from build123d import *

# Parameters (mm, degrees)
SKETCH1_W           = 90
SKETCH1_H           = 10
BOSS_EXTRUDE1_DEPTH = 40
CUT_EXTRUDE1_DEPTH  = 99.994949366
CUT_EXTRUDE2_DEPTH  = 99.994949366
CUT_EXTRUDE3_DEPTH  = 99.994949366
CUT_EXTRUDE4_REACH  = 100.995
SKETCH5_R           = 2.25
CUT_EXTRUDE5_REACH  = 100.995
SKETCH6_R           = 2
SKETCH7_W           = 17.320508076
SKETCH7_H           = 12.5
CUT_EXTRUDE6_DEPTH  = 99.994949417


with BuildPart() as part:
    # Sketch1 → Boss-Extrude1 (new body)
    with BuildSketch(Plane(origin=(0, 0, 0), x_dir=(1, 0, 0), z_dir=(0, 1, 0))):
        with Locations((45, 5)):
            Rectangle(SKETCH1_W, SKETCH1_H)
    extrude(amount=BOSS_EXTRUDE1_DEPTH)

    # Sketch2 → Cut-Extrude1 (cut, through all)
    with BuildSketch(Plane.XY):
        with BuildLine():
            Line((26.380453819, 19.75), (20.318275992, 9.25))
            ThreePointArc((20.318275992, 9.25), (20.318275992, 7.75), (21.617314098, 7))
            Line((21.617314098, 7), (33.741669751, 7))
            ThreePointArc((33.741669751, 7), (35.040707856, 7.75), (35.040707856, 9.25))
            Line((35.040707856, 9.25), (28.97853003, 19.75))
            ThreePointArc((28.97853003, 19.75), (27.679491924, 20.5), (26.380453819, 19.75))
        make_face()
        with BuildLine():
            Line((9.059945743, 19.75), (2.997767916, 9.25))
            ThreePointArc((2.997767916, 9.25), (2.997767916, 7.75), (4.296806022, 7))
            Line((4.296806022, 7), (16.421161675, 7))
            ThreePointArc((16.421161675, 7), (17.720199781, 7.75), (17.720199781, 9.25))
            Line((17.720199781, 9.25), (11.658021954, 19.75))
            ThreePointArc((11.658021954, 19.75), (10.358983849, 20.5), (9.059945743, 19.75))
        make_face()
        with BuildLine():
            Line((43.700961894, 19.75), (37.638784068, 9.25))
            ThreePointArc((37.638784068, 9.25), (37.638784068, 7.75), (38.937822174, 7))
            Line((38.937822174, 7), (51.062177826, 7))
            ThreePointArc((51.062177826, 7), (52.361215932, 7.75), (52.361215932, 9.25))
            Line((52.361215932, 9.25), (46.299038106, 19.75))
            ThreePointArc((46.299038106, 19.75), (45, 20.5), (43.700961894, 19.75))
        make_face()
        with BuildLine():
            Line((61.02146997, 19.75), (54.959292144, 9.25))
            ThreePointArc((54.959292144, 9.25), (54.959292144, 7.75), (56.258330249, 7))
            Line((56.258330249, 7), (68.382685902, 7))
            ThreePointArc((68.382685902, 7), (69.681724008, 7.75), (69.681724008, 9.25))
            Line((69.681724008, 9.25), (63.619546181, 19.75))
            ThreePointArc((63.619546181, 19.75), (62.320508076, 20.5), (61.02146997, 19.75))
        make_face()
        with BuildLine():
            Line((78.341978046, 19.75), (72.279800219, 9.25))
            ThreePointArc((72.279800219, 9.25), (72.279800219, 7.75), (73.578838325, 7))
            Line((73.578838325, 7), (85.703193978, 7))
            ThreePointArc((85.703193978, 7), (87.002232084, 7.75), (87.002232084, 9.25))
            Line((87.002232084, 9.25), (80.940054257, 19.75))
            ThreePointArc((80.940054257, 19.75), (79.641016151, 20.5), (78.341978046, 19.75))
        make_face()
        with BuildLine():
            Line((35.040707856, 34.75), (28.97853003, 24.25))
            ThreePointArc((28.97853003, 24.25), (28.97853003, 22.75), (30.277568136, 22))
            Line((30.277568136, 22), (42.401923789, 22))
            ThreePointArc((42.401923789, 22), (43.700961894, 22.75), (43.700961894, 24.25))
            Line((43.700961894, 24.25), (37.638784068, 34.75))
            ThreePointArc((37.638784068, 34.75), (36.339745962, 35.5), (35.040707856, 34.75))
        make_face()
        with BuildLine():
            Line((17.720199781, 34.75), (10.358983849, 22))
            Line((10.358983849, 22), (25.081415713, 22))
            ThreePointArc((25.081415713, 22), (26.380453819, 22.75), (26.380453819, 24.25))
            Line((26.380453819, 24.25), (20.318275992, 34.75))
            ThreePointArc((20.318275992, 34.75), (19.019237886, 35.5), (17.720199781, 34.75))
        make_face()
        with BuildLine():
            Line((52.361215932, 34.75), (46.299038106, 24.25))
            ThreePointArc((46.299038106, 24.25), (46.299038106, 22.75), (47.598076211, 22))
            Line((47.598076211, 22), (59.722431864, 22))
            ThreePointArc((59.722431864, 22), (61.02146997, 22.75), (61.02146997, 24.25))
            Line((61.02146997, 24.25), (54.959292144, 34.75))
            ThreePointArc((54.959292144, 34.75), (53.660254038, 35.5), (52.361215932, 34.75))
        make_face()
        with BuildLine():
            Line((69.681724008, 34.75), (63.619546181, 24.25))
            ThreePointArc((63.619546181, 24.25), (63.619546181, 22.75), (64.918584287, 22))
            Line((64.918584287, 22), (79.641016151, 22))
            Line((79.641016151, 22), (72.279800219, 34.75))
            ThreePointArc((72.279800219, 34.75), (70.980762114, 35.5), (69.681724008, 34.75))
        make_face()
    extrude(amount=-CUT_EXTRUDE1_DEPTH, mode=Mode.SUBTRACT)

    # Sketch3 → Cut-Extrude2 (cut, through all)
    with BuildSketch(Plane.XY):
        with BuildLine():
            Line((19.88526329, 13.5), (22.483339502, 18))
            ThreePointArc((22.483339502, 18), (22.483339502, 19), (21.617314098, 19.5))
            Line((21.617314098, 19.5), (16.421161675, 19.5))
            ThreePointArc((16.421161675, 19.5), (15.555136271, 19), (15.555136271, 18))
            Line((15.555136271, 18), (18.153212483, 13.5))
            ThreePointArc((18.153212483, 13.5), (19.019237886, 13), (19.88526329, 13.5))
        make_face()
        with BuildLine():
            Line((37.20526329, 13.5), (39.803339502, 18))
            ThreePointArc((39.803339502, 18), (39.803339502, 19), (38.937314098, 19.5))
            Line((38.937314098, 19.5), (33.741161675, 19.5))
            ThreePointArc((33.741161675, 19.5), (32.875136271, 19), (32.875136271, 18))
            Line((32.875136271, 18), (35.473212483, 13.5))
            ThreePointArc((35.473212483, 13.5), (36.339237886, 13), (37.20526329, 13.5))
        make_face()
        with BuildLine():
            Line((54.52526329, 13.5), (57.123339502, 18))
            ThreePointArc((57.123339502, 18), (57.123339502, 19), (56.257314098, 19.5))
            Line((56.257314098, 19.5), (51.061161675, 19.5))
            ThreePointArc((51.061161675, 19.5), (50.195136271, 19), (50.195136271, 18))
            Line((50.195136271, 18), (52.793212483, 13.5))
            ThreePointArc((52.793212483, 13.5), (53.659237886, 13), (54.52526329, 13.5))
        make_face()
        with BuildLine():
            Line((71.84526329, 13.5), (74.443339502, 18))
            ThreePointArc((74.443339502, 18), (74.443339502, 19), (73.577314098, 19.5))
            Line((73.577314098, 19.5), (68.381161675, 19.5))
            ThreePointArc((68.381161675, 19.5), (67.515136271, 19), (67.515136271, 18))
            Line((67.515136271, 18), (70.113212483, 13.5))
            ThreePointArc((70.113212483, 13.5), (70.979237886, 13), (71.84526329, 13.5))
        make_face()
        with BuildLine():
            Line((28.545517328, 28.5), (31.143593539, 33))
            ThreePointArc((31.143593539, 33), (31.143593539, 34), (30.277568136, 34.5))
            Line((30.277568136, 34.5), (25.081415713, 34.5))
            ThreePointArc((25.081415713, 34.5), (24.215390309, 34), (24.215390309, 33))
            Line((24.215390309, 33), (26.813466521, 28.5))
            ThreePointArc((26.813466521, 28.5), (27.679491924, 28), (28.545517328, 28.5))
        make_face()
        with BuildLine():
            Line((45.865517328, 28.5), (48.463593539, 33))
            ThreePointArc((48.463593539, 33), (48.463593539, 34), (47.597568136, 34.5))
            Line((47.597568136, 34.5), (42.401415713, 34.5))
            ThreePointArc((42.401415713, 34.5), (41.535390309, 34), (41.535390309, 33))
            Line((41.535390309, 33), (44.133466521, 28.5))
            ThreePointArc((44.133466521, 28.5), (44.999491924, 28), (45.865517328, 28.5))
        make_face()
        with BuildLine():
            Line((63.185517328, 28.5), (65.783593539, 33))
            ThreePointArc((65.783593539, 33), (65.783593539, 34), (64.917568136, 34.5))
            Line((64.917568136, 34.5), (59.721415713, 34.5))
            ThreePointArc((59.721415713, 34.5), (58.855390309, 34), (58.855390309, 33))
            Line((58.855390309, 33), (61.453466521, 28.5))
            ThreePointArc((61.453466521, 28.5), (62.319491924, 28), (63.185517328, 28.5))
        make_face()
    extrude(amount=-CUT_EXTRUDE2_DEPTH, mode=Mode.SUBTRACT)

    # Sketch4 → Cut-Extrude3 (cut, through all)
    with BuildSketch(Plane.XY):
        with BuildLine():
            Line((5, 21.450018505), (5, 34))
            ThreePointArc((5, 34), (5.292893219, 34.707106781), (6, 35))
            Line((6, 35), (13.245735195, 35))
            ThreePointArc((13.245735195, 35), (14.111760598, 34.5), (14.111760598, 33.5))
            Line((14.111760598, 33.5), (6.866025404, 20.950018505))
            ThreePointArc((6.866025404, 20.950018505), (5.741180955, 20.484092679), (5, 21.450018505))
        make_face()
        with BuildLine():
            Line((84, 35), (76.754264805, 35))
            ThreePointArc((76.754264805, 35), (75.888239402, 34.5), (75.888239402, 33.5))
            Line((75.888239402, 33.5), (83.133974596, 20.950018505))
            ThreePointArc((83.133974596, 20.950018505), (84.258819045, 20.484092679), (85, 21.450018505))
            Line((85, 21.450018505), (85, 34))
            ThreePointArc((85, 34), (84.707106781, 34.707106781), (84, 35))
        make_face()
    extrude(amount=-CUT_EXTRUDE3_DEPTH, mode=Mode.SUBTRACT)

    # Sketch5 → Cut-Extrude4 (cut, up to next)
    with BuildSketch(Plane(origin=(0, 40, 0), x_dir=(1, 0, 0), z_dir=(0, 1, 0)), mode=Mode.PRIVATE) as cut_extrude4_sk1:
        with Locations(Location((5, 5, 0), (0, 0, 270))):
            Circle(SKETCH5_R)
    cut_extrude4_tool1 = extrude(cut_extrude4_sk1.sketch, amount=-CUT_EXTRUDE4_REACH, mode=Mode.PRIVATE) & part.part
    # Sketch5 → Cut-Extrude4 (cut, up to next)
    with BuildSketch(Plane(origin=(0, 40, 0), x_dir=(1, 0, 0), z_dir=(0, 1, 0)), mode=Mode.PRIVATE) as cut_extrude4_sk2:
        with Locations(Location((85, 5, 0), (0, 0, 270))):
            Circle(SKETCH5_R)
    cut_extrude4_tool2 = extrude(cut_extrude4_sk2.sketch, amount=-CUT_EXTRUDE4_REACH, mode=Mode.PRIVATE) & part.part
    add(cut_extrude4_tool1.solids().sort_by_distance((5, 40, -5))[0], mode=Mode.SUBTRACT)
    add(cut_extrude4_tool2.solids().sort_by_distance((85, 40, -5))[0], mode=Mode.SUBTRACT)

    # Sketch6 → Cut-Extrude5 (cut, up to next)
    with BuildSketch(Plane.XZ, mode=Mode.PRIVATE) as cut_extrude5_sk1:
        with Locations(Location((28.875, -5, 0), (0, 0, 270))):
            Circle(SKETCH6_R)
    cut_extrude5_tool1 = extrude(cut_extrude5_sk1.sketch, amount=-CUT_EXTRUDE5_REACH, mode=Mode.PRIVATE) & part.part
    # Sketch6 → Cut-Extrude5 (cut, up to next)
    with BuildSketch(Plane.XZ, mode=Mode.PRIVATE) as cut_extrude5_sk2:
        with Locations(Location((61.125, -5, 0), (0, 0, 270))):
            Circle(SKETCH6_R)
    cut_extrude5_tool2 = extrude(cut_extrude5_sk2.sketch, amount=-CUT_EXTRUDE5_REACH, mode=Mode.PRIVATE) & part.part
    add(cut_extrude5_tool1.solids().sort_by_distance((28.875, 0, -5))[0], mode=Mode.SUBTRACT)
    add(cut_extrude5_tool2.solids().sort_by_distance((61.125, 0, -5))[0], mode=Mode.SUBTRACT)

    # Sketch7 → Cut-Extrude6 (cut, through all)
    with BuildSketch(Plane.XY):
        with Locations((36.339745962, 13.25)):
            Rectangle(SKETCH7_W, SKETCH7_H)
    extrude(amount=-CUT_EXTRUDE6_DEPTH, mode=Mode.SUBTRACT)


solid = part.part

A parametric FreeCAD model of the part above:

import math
import FreeCAD as App
import Part
import Sketcher

V = App.Vector
Q = App.Units.Quantity


def add_polygon(sketch, points):
    """Adds a closed chain of lines whose ends are joined by coincident constraints."""
    first, n = sketch.GeometryCount, len(points)
    for a, b in zip(points, points[1:] + points[:1]):
        sketch.addGeometry(Part.LineSegment(App.Vector(*a, 0), App.Vector(*b, 0)), False)
    for i in range(n):
        sketch.addConstraint(Sketcher.Constraint("Coincident", first + i, 2, first + (i + 1) % n, 1))

doc = App.newDocument("Part")
params = doc.addObject("Spreadsheet::Sheet", "Params")
for row, (alias, value) in enumerate([
    ("sketch1_width", "90 mm"),
    ("sketch1_height", "10 mm"),
    ("pad1_length", "40 mm"),
    ("sketch2_radius", "1.5 mm"),
    ("sketch3_radius", "1 mm"),
    ("sketch4_radius", "1 mm"),
    ("sketch5_diameter", "4.5 mm"),
    ("pocket4_length", "40 mm"),
    ("sketch6_diameter", "4.5 mm"),
    ("pocket5_length", "40 mm"),
    ("sketch7_diameter", "4 mm"),
    ("sketch8_diameter", "4 mm"),
    ("sketch9_height", "12.5 mm"),
], start=1):
    params.set(f"A{row}", alias)
    params.set(f"B{row}", "=" + value)
    params.setAlias(f"B{row}", alias)

body = doc.addObject("PartDesign::Body", "Body")

# Sketch on XZ plane
sketch1 = body.newObject("Sketcher::SketchObject", "Sketch")
sketch1.AttachmentSupport = (doc.getObject("XZ_Plane"), [""])
sketch1.MapMode = "FlatFace"
add_polygon(sketch1, [(0, -10), (0, 0), (90, 0), (90, -10)])  # lines 0-3
sketch1.addConstraint(Sketcher.Constraint("Vertical", 0))
sketch1.addConstraint(Sketcher.Constraint("Horizontal", 1))
sketch1.addConstraint(Sketcher.Constraint("Vertical", 2))
sketch1.addConstraint(Sketcher.Constraint("Horizontal", 3))
sketch1.addConstraint(Sketcher.Constraint("Coincident", 0, 2, -1, 1))
sketch1.addConstraint(Sketcher.Constraint("DistanceX", 1, 1, 1, 2, Q("90 mm")))
sketch1.addConstraint(Sketcher.Constraint("DistanceY", 0, 1, 0, 2, Q("10 mm")))
sketch1.setExpression("Constraints[9]", "Params.sketch1_width")
sketch1.setExpression("Constraints[10]", "Params.sketch1_height")
pad1 = body.newObject("PartDesign::Pad", "Pad")
pad1.Profile = sketch1
pad1.setExpression("Length", "Params.pad1_length")
pad1.Reversed = True

# Sketch on XY plane
sketch2 = body.newObject("Sketcher::SketchObject", "Sketch001")
sketch2.AttachmentSupport = (doc.getObject("XY_Plane"), [""])
sketch2.MapMode = "FlatFace"
sketch2.addGeometry(Part.LineSegment(V(26.380454, 19.75, 0), V(20.318276, 9.25, 0)), False)
sketch2.addGeometry(Part.ArcOfCircle(Part.Circle(V(21.617314, 8.5, 0), V(0, 0, 1), 1.5), math.radians(150), math.radians(270)), False)
sketch2.addGeometry(Part.LineSegment(V(21.617314, 7, 0), V(33.74167, 7, 0)), False)
sketch2.addGeometry(Part.ArcOfCircle(Part.Circle(V(33.74167, 8.5, 0), V(0, 0, 1), 1.5), math.radians(-90), math.radians(30)), False)
sketch2.addGeometry(Part.LineSegment(V(35.040708, 9.25, 0), V(28.97853, 19.75, 0)), False)
sketch2.addGeometry(Part.ArcOfCircle(Part.Circle(V(27.679492, 19, 0), V(0, 0, 1), 1.5), math.radians(30), math.radians(150)), False)
sketch2.addGeometry(Part.LineSegment(V(9.059946, 19.75, 0), V(2.997768, 9.25, 0)), False)
sketch2.addGeometry(Part.ArcOfCircle(Part.Circle(V(4.296806, 8.5, 0), V(0, 0, 1), 1.5), math.radians(150), math.radians(270)), False)
sketch2.addGeometry(Part.LineSegment(V(4.296806, 7, 0), V(16.421162, 7, 0)), False)
sketch2.addGeometry(Part.ArcOfCircle(Part.Circle(V(16.421162, 8.5, 0), V(0, 0, 1), 1.5), math.radians(-90), math.radians(30)), False)
sketch2.addGeometry(Part.LineSegment(V(17.7202, 9.25, 0), V(11.658022, 19.75, 0)), False)
sketch2.addGeometry(Part.ArcOfCircle(Part.Circle(V(10.358984, 19, 0), V(0, 0, 1), 1.5), math.radians(30), math.radians(150)), False)
sketch2.addGeometry(Part.LineSegment(V(43.700962, 19.75, 0), V(37.638784, 9.25, 0)), False)
sketch2.addGeometry(Part.ArcOfCircle(Part.Circle(V(38.937822, 8.5, 0), V(0, 0, 1), 1.5), math.radians(150), math.radians(270)), False)
sketch2.addGeometry(Part.LineSegment(V(38.937822, 7, 0), V(51.062178, 7, 0)), False)
sketch2.addGeometry(Part.ArcOfCircle(Part.Circle(V(51.062178, 8.5, 0), V(0, 0, 1), 1.5), math.radians(-90), math.radians(30)), False)
sketch2.addGeometry(Part.LineSegment(V(52.361216, 9.25, 0), V(46.299038, 19.75, 0)), False)
sketch2.addGeometry(Part.ArcOfCircle(Part.Circle(V(45, 19, 0), V(0, 0, 1), 1.5), math.radians(30), math.radians(150)), False)
sketch2.addGeometry(Part.LineSegment(V(61.02147, 19.75, 0), V(54.959292, 9.25, 0)), False)
sketch2.addGeometry(Part.ArcOfCircle(Part.Circle(V(56.25833, 8.5, 0), V(0, 0, 1), 1.5), math.radians(150), math.radians(270)), False)
sketch2.addGeometry(Part.LineSegment(V(56.25833, 7, 0), V(68.382686, 7, 0)), False)
sketch2.addGeometry(Part.ArcOfCircle(Part.Circle(V(68.382686, 8.5, 0), V(0, 0, 1), 1.5), math.radians(-90), math.radians(30)), False)
sketch2.addGeometry(Part.LineSegment(V(69.681724, 9.25, 0), V(63.619546, 19.75, 0)), False)
sketch2.addGeometry(Part.ArcOfCircle(Part.Circle(V(62.320508, 19, 0), V(0, 0, 1), 1.5), math.radians(30), math.radians(150)), False)
sketch2.addGeometry(Part.LineSegment(V(78.341978, 19.75, 0), V(72.2798, 9.25, 0)), False)
sketch2.addGeometry(Part.ArcOfCircle(Part.Circle(V(73.578838, 8.5, 0), V(0, 0, 1), 1.5), math.radians(150), math.radians(270)), False)
sketch2.addGeometry(Part.LineSegment(V(73.578838, 7, 0), V(85.703194, 7, 0)), False)
sketch2.addGeometry(Part.ArcOfCircle(Part.Circle(V(85.703194, 8.5, 0), V(0, 0, 1), 1.5), math.radians(-90), math.radians(30)), False)
sketch2.addGeometry(Part.LineSegment(V(87.002232, 9.25, 0), V(80.940054, 19.75, 0)), False)
sketch2.addGeometry(Part.ArcOfCircle(Part.Circle(V(79.641016, 19, 0), V(0, 0, 1), 1.5), math.radians(30), math.radians(150)), False)
sketch2.addGeometry(Part.LineSegment(V(35.040708, 34.75, 0), V(28.97853, 24.25, 0)), False)
sketch2.addGeometry(Part.ArcOfCircle(Part.Circle(V(30.277568, 23.5, 0), V(0, 0, 1), 1.5), math.radians(150), math.radians(270)), False)
sketch2.addGeometry(Part.LineSegment(V(30.277568, 22, 0), V(42.401924, 22, 0)), False)
sketch2.addGeometry(Part.ArcOfCircle(Part.Circle(V(42.401924, 23.5, 0), V(0, 0, 1), 1.5), math.radians(-90), math.radians(30)), False)
sketch2.addGeometry(Part.LineSegment(V(43.700962, 24.25, 0), V(37.638784, 34.75, 0)), False)
sketch2.addGeometry(Part.ArcOfCircle(Part.Circle(V(36.339746, 34, 0), V(0, 0, 1), 1.5), math.radians(30), math.radians(150)), False)
sketch2.addGeometry(Part.LineSegment(V(17.7202, 34.75, 0), V(10.358984, 22, 0)), False)
sketch2.addGeometry(Part.LineSegment(V(10.358984, 22, 0), V(25.081416, 22, 0)), False)
sketch2.addGeometry(Part.ArcOfCircle(Part.Circle(V(25.081416, 23.5, 0), V(0, 0, 1), 1.5), math.radians(-90), math.radians(30)), False)
sketch2.addGeometry(Part.LineSegment(V(26.380454, 24.25, 0), V(20.318276, 34.75, 0)), False)
sketch2.addGeometry(Part.ArcOfCircle(Part.Circle(V(19.019238, 34, 0), V(0, 0, 1), 1.5), math.radians(30), math.radians(150)), False)
sketch2.addGeometry(Part.LineSegment(V(52.361216, 34.75, 0), V(46.299038, 24.25, 0)), False)
sketch2.addGeometry(Part.ArcOfCircle(Part.Circle(V(47.598076, 23.5, 0), V(0, 0, 1), 1.5), math.radians(150), math.radians(270)), False)
sketch2.addGeometry(Part.LineSegment(V(47.598076, 22, 0), V(59.722432, 22, 0)), False)
sketch2.addGeometry(Part.ArcOfCircle(Part.Circle(V(59.722432, 23.5, 0), V(0, 0, 1), 1.5), math.radians(-90), math.radians(30)), False)
sketch2.addGeometry(Part.LineSegment(V(61.02147, 24.25, 0), V(54.959292, 34.75, 0)), False)
sketch2.addGeometry(Part.ArcOfCircle(Part.Circle(V(53.660254, 34, 0), V(0, 0, 1), 1.5), math.radians(30), math.radians(150)), False)
sketch2.addGeometry(Part.LineSegment(V(69.681724, 34.75, 0), V(63.619546, 24.25, 0)), False)
sketch2.addGeometry(Part.ArcOfCircle(Part.Circle(V(64.918584, 23.5, 0), V(0, 0, 1), 1.5), math.radians(150), math.radians(270)), False)
sketch2.addGeometry(Part.LineSegment(V(64.918584, 22, 0), V(79.641016, 22, 0)), False)
sketch2.addGeometry(Part.LineSegment(V(79.641016, 22, 0), V(72.2798, 34.75, 0)), False)
sketch2.addGeometry(Part.ArcOfCircle(Part.Circle(V(70.980762, 34, 0), V(0, 0, 1), 1.5), math.radians(30), math.radians(150)), False)
sketch2.addConstraint(Sketcher.Constraint("Tangent", 0, 2, 1, 1))
sketch2.addConstraint(Sketcher.Constraint("Tangent", 1, 2, 2, 1))
sketch2.addConstraint(Sketcher.Constraint("Tangent", 2, 2, 3, 1))
sketch2.addConstraint(Sketcher.Constraint("Tangent", 3, 2, 4, 1))
sketch2.addConstraint(Sketcher.Constraint("Tangent", 4, 2, 5, 1))
sketch2.addConstraint(Sketcher.Constraint("Tangent", 5, 2, 0, 1))
sketch2.addConstraint(Sketcher.Constraint("Tangent", 6, 2, 7, 1))
sketch2.addConstraint(Sketcher.Constraint("Tangent", 7, 2, 8, 1))
sketch2.addConstraint(Sketcher.Constraint("Tangent", 8, 2, 9, 1))
sketch2.addConstraint(Sketcher.Constraint("Tangent", 9, 2, 10, 1))
sketch2.addConstraint(Sketcher.Constraint("Tangent", 10, 2, 11, 1))
sketch2.addConstraint(Sketcher.Constraint("Tangent", 11, 2, 6, 1))
sketch2.addConstraint(Sketcher.Constraint("Tangent", 12, 2, 13, 1))
sketch2.addConstraint(Sketcher.Constraint("Tangent", 13, 2, 14, 1))
sketch2.addConstraint(Sketcher.Constraint("Tangent", 14, 2, 15, 1))
sketch2.addConstraint(Sketcher.Constraint("Tangent", 15, 2, 16, 1))
sketch2.addConstraint(Sketcher.Constraint("Tangent", 16, 2, 17, 1))
sketch2.addConstraint(Sketcher.Constraint("Tangent", 17, 2, 12, 1))
sketch2.addConstraint(Sketcher.Constraint("Tangent", 18, 2, 19, 1))
sketch2.addConstraint(Sketcher.Constraint("Tangent", 19, 2, 20, 1))
sketch2.addConstraint(Sketcher.Constraint("Tangent", 20, 2, 21, 1))
sketch2.addConstraint(Sketcher.Constraint("Tangent", 21, 2, 22, 1))
sketch2.addConstraint(Sketcher.Constraint("Tangent", 22, 2, 23, 1))
sketch2.addConstraint(Sketcher.Constraint("Tangent", 23, 2, 18, 1))
sketch2.addConstraint(Sketcher.Constraint("Tangent", 24, 2, 25, 1))
sketch2.addConstraint(Sketcher.Constraint("Tangent", 25, 2, 26, 1))
sketch2.addConstraint(Sketcher.Constraint("Tangent", 26, 2, 27, 1))
sketch2.addConstraint(Sketcher.Constraint("Tangent", 27, 2, 28, 1))
sketch2.addConstraint(Sketcher.Constraint("Tangent", 28, 2, 29, 1))
sketch2.addConstraint(Sketcher.Constraint("Tangent", 29, 2, 24, 1))
sketch2.addConstraint(Sketcher.Constraint("Tangent", 30, 2, 31, 1))
sketch2.addConstraint(Sketcher.Constraint("Tangent", 31, 2, 32, 1))
sketch2.addConstraint(Sketcher.Constraint("Tangent", 32, 2, 33, 1))
sketch2.addConstraint(Sketcher.Constraint("Tangent", 33, 2, 34, 1))
sketch2.addConstraint(Sketcher.Constraint("Tangent", 34, 2, 35, 1))
sketch2.addConstraint(Sketcher.Constraint("Tangent", 35, 2, 30, 1))
sketch2.addConstraint(Sketcher.Constraint("Coincident", 36, 2, 37, 1))
sketch2.addConstraint(Sketcher.Constraint("Tangent", 37, 2, 38, 1))
sketch2.addConstraint(Sketcher.Constraint("Tangent", 38, 2, 39, 1))
sketch2.addConstraint(Sketcher.Constraint("Tangent", 39, 2, 40, 1))
sketch2.addConstraint(Sketcher.Constraint("Tangent", 40, 2, 36, 1))
sketch2.addConstraint(Sketcher.Constraint("Tangent", 41, 2, 42, 1))
sketch2.addConstraint(Sketcher.Constraint("Tangent", 42, 2, 43, 1))
sketch2.addConstraint(Sketcher.Constraint("Tangent", 43, 2, 44, 1))
sketch2.addConstraint(Sketcher.Constraint("Tangent", 44, 2, 45, 1))
sketch2.addConstraint(Sketcher.Constraint("Tangent", 45, 2, 46, 1))
sketch2.addConstraint(Sketcher.Constraint("Tangent", 46, 2, 41, 1))
sketch2.addConstraint(Sketcher.Constraint("Tangent", 47, 2, 48, 1))
sketch2.addConstraint(Sketcher.Constraint("Tangent", 48, 2, 49, 1))
sketch2.addConstraint(Sketcher.Constraint("Coincident", 49, 2, 50, 1))
sketch2.addConstraint(Sketcher.Constraint("Tangent", 50, 2, 51, 1))
sketch2.addConstraint(Sketcher.Constraint("Tangent", 51, 2, 47, 1))
sketch2.addConstraint(Sketcher.Constraint("Horizontal", 2))
sketch2.addConstraint(Sketcher.Constraint("Horizontal", 8))
sketch2.addConstraint(Sketcher.Constraint("Horizontal", 14))
sketch2.addConstraint(Sketcher.Constraint("Horizontal", 20))
sketch2.addConstraint(Sketcher.Constraint("Horizontal", 26))
sketch2.addConstraint(Sketcher.Constraint("Horizontal", 32))
sketch2.addConstraint(Sketcher.Constraint("Horizontal", 37))
sketch2.addConstraint(Sketcher.Constraint("Horizontal", 43))
sketch2.addConstraint(Sketcher.Constraint("Horizontal", 49))
sketch2.addConstraint(Sketcher.Constraint("Equal", 1, 3))
sketch2.addConstraint(Sketcher.Constraint("Equal", 3, 5))
sketch2.addConstraint(Sketcher.Constraint("Equal", 5, 7))
sketch2.addConstraint(Sketcher.Constraint("Equal", 7, 9))
sketch2.addConstraint(Sketcher.Constraint("Equal", 9, 11))
sketch2.addConstraint(Sketcher.Constraint("Equal", 11, 13))
sketch2.addConstraint(Sketcher.Constraint("Equal", 13, 15))
sketch2.addConstraint(Sketcher.Constraint("Equal", 15, 17))
sketch2.addConstraint(Sketcher.Constraint("Equal", 17, 19))
sketch2.addConstraint(Sketcher.Constraint("Equal", 19, 21))
sketch2.addConstraint(Sketcher.Constraint("Equal", 21, 23))
sketch2.addConstraint(Sketcher.Constraint("Equal", 23, 25))
sketch2.addConstraint(Sketcher.Constraint("Equal", 25, 27))
sketch2.addConstraint(Sketcher.Constraint("Equal", 27, 29))
sketch2.addConstraint(Sketcher.Constraint("Equal", 29, 31))
sketch2.addConstraint(Sketcher.Constraint("Equal", 31, 33))
sketch2.addConstraint(Sketcher.Constraint("Equal", 33, 35))
sketch2.addConstraint(Sketcher.Constraint("Equal", 35, 38))
sketch2.addConstraint(Sketcher.Constraint("Equal", 38, 40))
sketch2.addConstraint(Sketcher.Constraint("Equal", 40, 42))
sketch2.addConstraint(Sketcher.Constraint("Equal", 42, 44))
sketch2.addConstraint(Sketcher.Constraint("Equal", 44, 46))
sketch2.addConstraint(Sketcher.Constraint("Equal", 46, 48))
sketch2.addConstraint(Sketcher.Constraint("Equal", 48, 51))
sketch2.addConstraint(Sketcher.Constraint("Parallel", 0, 6))
sketch2.addConstraint(Sketcher.Constraint("Parallel", 4, 10))
sketch2.addConstraint(Sketcher.Constraint("Parallel", 6, 12))
sketch2.addConstraint(Sketcher.Constraint("Parallel", 10, 16))
sketch2.addConstraint(Sketcher.Constraint("Parallel", 12, 18))
sketch2.addConstraint(Sketcher.Constraint("Parallel", 16, 22))
sketch2.addConstraint(Sketcher.Constraint("Parallel", 18, 24))
sketch2.addConstraint(Sketcher.Constraint("Parallel", 22, 28))
sketch2.addConstraint(Sketcher.Constraint("Parallel", 24, 30))
sketch2.addConstraint(Sketcher.Constraint("Parallel", 28, 34))
sketch2.addConstraint(Sketcher.Constraint("Parallel", 30, 36))
sketch2.addConstraint(Sketcher.Constraint("Parallel", 34, 39))
sketch2.addConstraint(Sketcher.Constraint("Parallel", 36, 41))
sketch2.addConstraint(Sketcher.Constraint("Parallel", 39, 45))
sketch2.addConstraint(Sketcher.Constraint("Parallel", 41, 47))
sketch2.addConstraint(Sketcher.Constraint("Parallel", 45, 50))
sketch2.addConstraint(Sketcher.Constraint("Horizontal", 3, 3, 7, 3))
sketch2.addConstraint(Sketcher.Constraint("Horizontal", 5, 3, 11, 3))
sketch2.addConstraint(Sketcher.Constraint("Horizontal", 9, 3, 13, 3))
sketch2.addConstraint(Sketcher.Constraint("Horizontal", 11, 3, 17, 3))
sketch2.addConstraint(Sketcher.Constraint("Horizontal", 15, 3, 19, 3))
sketch2.addConstraint(Sketcher.Constraint("Horizontal", 17, 3, 23, 3))
sketch2.addConstraint(Sketcher.Constraint("Horizontal", 21, 3, 25, 3))
sketch2.addConstraint(Sketcher.Constraint("Horizontal", 23, 3, 29, 3))
sketch2.addConstraint(Sketcher.Constraint("Horizontal", 33, 3, 38, 3))
sketch2.addConstraint(Sketcher.Constraint("Horizontal", 35, 3, 40, 3))
sketch2.addConstraint(Sketcher.Constraint("Horizontal", 38, 3, 42, 3))
sketch2.addConstraint(Sketcher.Constraint("Horizontal", 40, 3, 46, 3))
sketch2.addConstraint(Sketcher.Constraint("Horizontal", 44, 3, 48, 3))
sketch2.addConstraint(Sketcher.Constraint("Horizontal", 46, 3, 51, 3))
sketch2.addConstraint(Sketcher.Constraint("Horizontal", 0, 2, 3, 2))
sketch2.addConstraint(Sketcher.Constraint("Vertical", 4, 2, 30, 2))
sketch2.addConstraint(Sketcher.Constraint("Vertical", 17, 2, 33, 2))
sketch2.addConstraint(Sketcher.Constraint("Vertical", 12, 2, 34, 2))
sketch2.addConstraint(Sketcher.Constraint("Vertical", 11, 3, 36, 2))
sketch2.addConstraint(Sketcher.Constraint("Vertical", 5, 2, 38, 2))
sketch2.addConstraint(Sketcher.Constraint("Vertical", 9, 2, 40, 2))
sketch2.addConstraint(Sketcher.Constraint("Vertical", 16, 2, 41, 2))
sketch2.addConstraint(Sketcher.Constraint("Vertical", 23, 2, 44, 2))
sketch2.addConstraint(Sketcher.Constraint("Vertical", 22, 2, 47, 2))
sketch2.addConstraint(Sketcher.Constraint("Vertical", 29, 3, 49, 2))
sketch2.addConstraint(Sketcher.Constraint("Radius", 1, Q("1.5 mm")))
sketch2.addConstraint(Sketcher.Constraint("DistanceY", -1, 1, 5, 3, Q("19 mm")))
sketch2.addConstraint(Sketcher.Constraint("DistanceX", -1, 1, 17, 3, Q("45 mm")))
sketch2.addConstraint(Sketcher.Constraint("DistanceY", -1, 1, 35, 3, Q("34 mm")))
sketch2.addConstraint(Sketcher.Constraint("DistanceY", -1, 1, 1, 2, Q("7 mm")))
sketch2.setExpression("Constraints[126]", "Params.sketch2_radius")
pocket1 = body.newObject("PartDesign::Pocket", "Pocket")
pocket1.Profile = sketch2
pocket1.Type = "ThroughAll"

# Sketch on XY plane
sketch3 = body.newObject("Sketcher::SketchObject", "Sketch002")
sketch3.AttachmentSupport = (doc.getObject("XY_Plane"), [""])
sketch3.MapMode = "FlatFace"
sketch3.addGeometry(Part.LineSegment(V(19.885263, 13.5, 0), V(22.48334, 18, 0)), False)
sketch3.addGeometry(Part.ArcOfCircle(Part.Circle(V(21.617314, 18.5, 0), V(0, 0, 1), 1), math.radians(-30), math.radians(90)), False)
sketch3.addGeometry(Part.LineSegment(V(21.617314, 19.5, 0), V(16.421162, 19.5, 0)), False)
sketch3.addGeometry(Part.ArcOfCircle(Part.Circle(V(16.421162, 18.5, 0), V(0, 0, 1), 1), math.radians(90), math.radians(210)), False)
sketch3.addGeometry(Part.LineSegment(V(15.555136, 18, 0), V(18.153212, 13.5, 0)), False)
sketch3.addGeometry(Part.ArcOfCircle(Part.Circle(V(19.019238, 14, 0), V(0, 0, 1), 1), math.radians(-150), math.radians(-30)), False)
sketch3.addGeometry(Part.LineSegment(V(37.205263, 13.5, 0), V(39.80334, 18, 0)), False)
sketch3.addGeometry(Part.ArcOfCircle(Part.Circle(V(38.937314, 18.5, 0), V(0, 0, 1), 1), math.radians(-30), math.radians(90)), False)
sketch3.addGeometry(Part.LineSegment(V(38.937314, 19.5, 0), V(33.741162, 19.5, 0)), False)
sketch3.addGeometry(Part.ArcOfCircle(Part.Circle(V(33.741162, 18.5, 0), V(0, 0, 1), 1), math.radians(90), math.radians(210)), False)
sketch3.addGeometry(Part.LineSegment(V(32.875136, 18, 0), V(35.473212, 13.5, 0)), False)
sketch3.addGeometry(Part.ArcOfCircle(Part.Circle(V(36.339238, 14, 0), V(0, 0, 1), 1), math.radians(-150), math.radians(-30)), False)
sketch3.addGeometry(Part.LineSegment(V(54.525263, 13.5, 0), V(57.12334, 18, 0)), False)
sketch3.addGeometry(Part.ArcOfCircle(Part.Circle(V(56.257314, 18.5, 0), V(0, 0, 1), 1), math.radians(-30), math.radians(90)), False)
sketch3.addGeometry(Part.LineSegment(V(56.257314, 19.5, 0), V(51.061162, 19.5, 0)), False)
sketch3.addGeometry(Part.ArcOfCircle(Part.Circle(V(51.061162, 18.5, 0), V(0, 0, 1), 1), math.radians(90), math.radians(210)), False)
sketch3.addGeometry(Part.LineSegment(V(50.195136, 18, 0), V(52.793212, 13.5, 0)), False)
sketch3.addGeometry(Part.ArcOfCircle(Part.Circle(V(53.659238, 14, 0), V(0, 0, 1), 1), math.radians(-150), math.radians(-30)), False)
sketch3.addGeometry(Part.LineSegment(V(71.845263, 13.5, 0), V(74.44334, 18, 0)), False)
sketch3.addGeometry(Part.ArcOfCircle(Part.Circle(V(73.577314, 18.5, 0), V(0, 0, 1), 1), math.radians(-30), math.radians(90)), False)
sketch3.addGeometry(Part.LineSegment(V(73.577314, 19.5, 0), V(68.381162, 19.5, 0)), False)
sketch3.addGeometry(Part.ArcOfCircle(Part.Circle(V(68.381162, 18.5, 0), V(0, 0, 1), 1), math.radians(90), math.radians(210)), False)
sketch3.addGeometry(Part.LineSegment(V(67.515136, 18, 0), V(70.113212, 13.5, 0)), False)
sketch3.addGeometry(Part.ArcOfCircle(Part.Circle(V(70.979238, 14, 0), V(0, 0, 1), 1), math.radians(-150), math.radians(-30)), False)
sketch3.addGeometry(Part.LineSegment(V(28.545517, 28.5, 0), V(31.143594, 33, 0)), False)
sketch3.addGeometry(Part.ArcOfCircle(Part.Circle(V(30.277568, 33.5, 0), V(0, 0, 1), 1), math.radians(-30), math.radians(90)), False)
sketch3.addGeometry(Part.LineSegment(V(30.277568, 34.5, 0), V(25.081416, 34.5, 0)), False)
sketch3.addGeometry(Part.ArcOfCircle(Part.Circle(V(25.081416, 33.5, 0), V(0, 0, 1), 1), math.radians(90), math.radians(210)), False)
sketch3.addGeometry(Part.LineSegment(V(24.21539, 33, 0), V(26.813467, 28.5, 0)), False)
sketch3.addGeometry(Part.ArcOfCircle(Part.Circle(V(27.679492, 29, 0), V(0, 0, 1), 1), math.radians(-150), math.radians(-30)), False)
sketch3.addGeometry(Part.LineSegment(V(45.865517, 28.5, 0), V(48.463594, 33, 0)), False)
sketch3.addGeometry(Part.ArcOfCircle(Part.Circle(V(47.597568, 33.5, 0), V(0, 0, 1), 1), math.radians(-30), math.radians(90)), False)
sketch3.addGeometry(Part.LineSegment(V(47.597568, 34.5, 0), V(42.401416, 34.5, 0)), False)
sketch3.addGeometry(Part.ArcOfCircle(Part.Circle(V(42.401416, 33.5, 0), V(0, 0, 1), 1), math.radians(90), math.radians(210)), False)
sketch3.addGeometry(Part.LineSegment(V(41.53539, 33, 0), V(44.133467, 28.5, 0)), False)
sketch3.addGeometry(Part.ArcOfCircle(Part.Circle(V(44.999492, 29, 0), V(0, 0, 1), 1), math.radians(-150), math.radians(-30)), False)
sketch3.addGeometry(Part.LineSegment(V(63.185517, 28.5, 0), V(65.783594, 33, 0)), False)
sketch3.addGeometry(Part.ArcOfCircle(Part.Circle(V(64.917568, 33.5, 0), V(0, 0, 1), 1), math.radians(-30), math.radians(90)), False)
sketch3.addGeometry(Part.LineSegment(V(64.917568, 34.5, 0), V(59.721416, 34.5, 0)), False)
sketch3.addGeometry(Part.ArcOfCircle(Part.Circle(V(59.721416, 33.5, 0), V(0, 0, 1), 1), math.radians(90), math.radians(210)), False)
sketch3.addGeometry(Part.LineSegment(V(58.85539, 33, 0), V(61.453467, 28.5, 0)), False)
sketch3.addGeometry(Part.ArcOfCircle(Part.Circle(V(62.319492, 29, 0), V(0, 0, 1), 1), math.radians(-150), math.radians(-30)), False)
sketch3.addConstraint(Sketcher.Constraint("Tangent", 0, 2, 1, 1))
sketch3.addConstraint(Sketcher.Constraint("Tangent", 1, 2, 2, 1))
sketch3.addConstraint(Sketcher.Constraint("Tangent", 2, 2, 3, 1))
sketch3.addConstraint(Sketcher.Constraint("Tangent", 3, 2, 4, 1))
sketch3.addConstraint(Sketcher.Constraint("Tangent", 4, 2, 5, 1))
sketch3.addConstraint(Sketcher.Constraint("Tangent", 5, 2, 0, 1))
sketch3.addConstraint(Sketcher.Constraint("Tangent", 6, 2, 7, 1))
sketch3.addConstraint(Sketcher.Constraint("Tangent", 7, 2, 8, 1))
sketch3.addConstraint(Sketcher.Constraint("Tangent", 8, 2, 9, 1))
sketch3.addConstraint(Sketcher.Constraint("Tangent", 9, 2, 10, 1))
sketch3.addConstraint(Sketcher.Constraint("Tangent", 10, 2, 11, 1))
sketch3.addConstraint(Sketcher.Constraint("Tangent", 11, 2, 6, 1))
sketch3.addConstraint(Sketcher.Constraint("Tangent", 12, 2, 13, 1))
sketch3.addConstraint(Sketcher.Constraint("Tangent", 13, 2, 14, 1))
sketch3.addConstraint(Sketcher.Constraint("Tangent", 14, 2, 15, 1))
sketch3.addConstraint(Sketcher.Constraint("Tangent", 15, 2, 16, 1))
sketch3.addConstraint(Sketcher.Constraint("Tangent", 16, 2, 17, 1))
sketch3.addConstraint(Sketcher.Constraint("Tangent", 17, 2, 12, 1))
sketch3.addConstraint(Sketcher.Constraint("Tangent", 18, 2, 19, 1))
sketch3.addConstraint(Sketcher.Constraint("Tangent", 19, 2, 20, 1))
sketch3.addConstraint(Sketcher.Constraint("Tangent", 20, 2, 21, 1))
sketch3.addConstraint(Sketcher.Constraint("Tangent", 21, 2, 22, 1))
sketch3.addConstraint(Sketcher.Constraint("Tangent", 22, 2, 23, 1))
sketch3.addConstraint(Sketcher.Constraint("Tangent", 23, 2, 18, 1))
sketch3.addConstraint(Sketcher.Constraint("Tangent", 24, 2, 25, 1))
sketch3.addConstraint(Sketcher.Constraint("Tangent", 25, 2, 26, 1))
sketch3.addConstraint(Sketcher.Constraint("Tangent", 26, 2, 27, 1))
sketch3.addConstraint(Sketcher.Constraint("Tangent", 27, 2, 28, 1))
sketch3.addConstraint(Sketcher.Constraint("Tangent", 28, 2, 29, 1))
sketch3.addConstraint(Sketcher.Constraint("Tangent", 29, 2, 24, 1))
sketch3.addConstraint(Sketcher.Constraint("Tangent", 30, 2, 31, 1))
sketch3.addConstraint(Sketcher.Constraint("Tangent", 31, 2, 32, 1))
sketch3.addConstraint(Sketcher.Constraint("Tangent", 32, 2, 33, 1))
sketch3.addConstraint(Sketcher.Constraint("Tangent", 33, 2, 34, 1))
sketch3.addConstraint(Sketcher.Constraint("Tangent", 34, 2, 35, 1))
sketch3.addConstraint(Sketcher.Constraint("Tangent", 35, 2, 30, 1))
sketch3.addConstraint(Sketcher.Constraint("Tangent", 36, 2, 37, 1))
sketch3.addConstraint(Sketcher.Constraint("Tangent", 37, 2, 38, 1))
sketch3.addConstraint(Sketcher.Constraint("Tangent", 38, 2, 39, 1))
sketch3.addConstraint(Sketcher.Constraint("Tangent", 39, 2, 40, 1))
sketch3.addConstraint(Sketcher.Constraint("Tangent", 40, 2, 41, 1))
sketch3.addConstraint(Sketcher.Constraint("Tangent", 41, 2, 36, 1))
sketch3.addConstraint(Sketcher.Constraint("Horizontal", 2))
sketch3.addConstraint(Sketcher.Constraint("Horizontal", 8))
sketch3.addConstraint(Sketcher.Constraint("Horizontal", 14))
sketch3.addConstraint(Sketcher.Constraint("Horizontal", 20))
sketch3.addConstraint(Sketcher.Constraint("Horizontal", 26))
sketch3.addConstraint(Sketcher.Constraint("Horizontal", 32))
sketch3.addConstraint(Sketcher.Constraint("Horizontal", 38))
sketch3.addConstraint(Sketcher.Constraint("Equal", 1, 3))
sketch3.addConstraint(Sketcher.Constraint("Equal", 3, 5))
sketch3.addConstraint(Sketcher.Constraint("Equal", 5, 7))
sketch3.addConstraint(Sketcher.Constraint("Equal", 7, 9))
sketch3.addConstraint(Sketcher.Constraint("Equal", 9, 11))
sketch3.addConstraint(Sketcher.Constraint("Equal", 11, 13))
sketch3.addConstraint(Sketcher.Constraint("Equal", 13, 15))
sketch3.addConstraint(Sketcher.Constraint("Equal", 15, 17))
sketch3.addConstraint(Sketcher.Constraint("Equal", 17, 19))
sketch3.addConstraint(Sketcher.Constraint("Equal", 19, 21))
sketch3.addConstraint(Sketcher.Constraint("Equal", 21, 23))
sketch3.addConstraint(Sketcher.Constraint("Equal", 23, 25))
sketch3.addConstraint(Sketcher.Constraint("Equal", 25, 27))
sketch3.addConstraint(Sketcher.Constraint("Equal", 27, 29))
sketch3.addConstraint(Sketcher.Constraint("Equal", 29, 31))
sketch3.addConstraint(Sketcher.Constraint("Equal", 31, 33))
sketch3.addConstraint(Sketcher.Constraint("Equal", 33, 35))
sketch3.addConstraint(Sketcher.Constraint("Equal", 35, 37))
sketch3.addConstraint(Sketcher.Constraint("Equal", 37, 39))
sketch3.addConstraint(Sketcher.Constraint("Equal", 39, 41))
sketch3.addConstraint(Sketcher.Constraint("Parallel", 0, 6))
sketch3.addConstraint(Sketcher.Constraint("Parallel", 4, 10))
sketch3.addConstraint(Sketcher.Constraint("Parallel", 6, 12))
sketch3.addConstraint(Sketcher.Constraint("Parallel", 10, 16))
sketch3.addConstraint(Sketcher.Constraint("Parallel", 12, 18))
sketch3.addConstraint(Sketcher.Constraint("Parallel", 16, 22))
sketch3.addConstraint(Sketcher.Constraint("Parallel", 18, 24))
sketch3.addConstraint(Sketcher.Constraint("Parallel", 22, 28))
sketch3.addConstraint(Sketcher.Constraint("Parallel", 24, 30))
sketch3.addConstraint(Sketcher.Constraint("Parallel", 28, 34))
sketch3.addConstraint(Sketcher.Constraint("Parallel", 30, 36))
sketch3.addConstraint(Sketcher.Constraint("Parallel", 34, 40))
sketch3.addConstraint(Sketcher.Constraint("Horizontal", 3, 3, 7, 3))
sketch3.addConstraint(Sketcher.Constraint("Horizontal", 5, 3, 11, 3))
sketch3.addConstraint(Sketcher.Constraint("Horizontal", 9, 3, 13, 3))
sketch3.addConstraint(Sketcher.Constraint("Horizontal", 11, 3, 17, 3))
sketch3.addConstraint(Sketcher.Constraint("Horizontal", 15, 3, 19, 3))
sketch3.addConstraint(Sketcher.Constraint("Horizontal", 17, 3, 23, 3))
sketch3.addConstraint(Sketcher.Constraint("Horizontal", 27, 3, 31, 3))
sketch3.addConstraint(Sketcher.Constraint("Horizontal", 29, 3, 35, 3))
sketch3.addConstraint(Sketcher.Constraint("Horizontal", 33, 3, 37, 3))
sketch3.addConstraint(Sketcher.Constraint("Horizontal", 35, 3, 41, 3))
sketch3.addConstraint(Sketcher.Constraint("Horizontal", 0, 2, 3, 2))
sketch3.addConstraint(Sketcher.Constraint("Equal", 20, 26))
sketch3.addConstraint(Sketcher.Constraint("Radius", 1, Q("1 mm")))
sketch3.addConstraint(Sketcher.Constraint("Angle", 0, Q("60 deg")))
sketch3.addConstraint(Sketcher.Constraint("DistanceY", -1, 1, 5, 3, Q("14 mm")))
sketch3.addConstraint(Sketcher.Constraint("DistanceY", -1, 1, 29, 3, Q("29 mm")))
sketch3.addConstraint(Sketcher.Constraint("DistanceY", -1, 1, 0, 2, Q("18 mm")))
sketch3.addConstraint(Sketcher.Constraint("DistanceX", -1, 1, 3, 3, Q("16.421162 mm")))
sketch3.addConstraint(Sketcher.Constraint("DistanceX", -1, 1, 9, 3, Q("33.741162 mm")))
sketch3.addConstraint(Sketcher.Constraint("DistanceX", -1, 1, 15, 3, Q("51.061162 mm")))
sketch3.addConstraint(Sketcher.Constraint("DistanceX", -1, 1, 21, 3, Q("68.381162 mm")))
sketch3.addConstraint(Sketcher.Constraint("DistanceX", -1, 1, 25, 3, Q("30.277568 mm")))
sketch3.addConstraint(Sketcher.Constraint("DistanceX", -1, 1, 31, 3, Q("47.597568 mm")))
sketch3.addConstraint(Sketcher.Constraint("DistanceX", -1, 1, 37, 3, Q("64.917568 mm")))
sketch3.setExpression("Constraints[93]", "Params.sketch3_radius")
pocket2 = body.newObject("PartDesign::Pocket", "Pocket001")
pocket2.Profile = sketch3
pocket2.Type = "ThroughAll"

# Sketch on XY plane
sketch4 = body.newObject("Sketcher::SketchObject", "Sketch003")
sketch4.AttachmentSupport = (doc.getObject("XY_Plane"), [""])
sketch4.MapMode = "FlatFace"
sketch4.addGeometry(Part.LineSegment(V(5, 34, 0), V(5, 21.450019, 0)), False)
sketch4.addGeometry(Part.ArcOfCircle(Part.Circle(V(6, 21.450019, 0), V(0, 0, 1), 1), math.radians(180), math.radians(330)), False)
sketch4.addGeometry(Part.LineSegment(V(6.866025, 20.950019, 0), V(14.111761, 33.5, 0)), False)
sketch4.addGeometry(Part.ArcOfCircle(Part.Circle(V(13.245735, 34, 0), V(0, 0, 1), 1), math.radians(-30), math.radians(90)), False)
sketch4.addGeometry(Part.LineSegment(V(13.245735, 35, 0), V(6, 35, 0)), False)
sketch4.addGeometry(Part.ArcOfCircle(Part.Circle(V(6, 34, 0), V(0, 0, 1), 1), math.radians(90), math.radians(180)), False)
sketch4.addGeometry(Part.LineSegment(V(84, 35, 0), V(76.754265, 35, 0)), False)
sketch4.addGeometry(Part.ArcOfCircle(Part.Circle(V(76.754265, 34, 0), V(0, 0, 1), 1), math.radians(90), math.radians(210)), False)
sketch4.addGeometry(Part.LineSegment(V(75.888239, 33.5, 0), V(83.133975, 20.950019, 0)), False)
sketch4.addGeometry(Part.ArcOfCircle(Part.Circle(V(84, 21.450019, 0), V(0, 0, 1), 1), math.radians(-150), math.radians(0)), False)
sketch4.addGeometry(Part.LineSegment(V(85, 21.450019, 0), V(85, 34, 0)), False)
sketch4.addGeometry(Part.ArcOfCircle(Part.Circle(V(84, 34, 0), V(0, 0, 1), 1), math.radians(0), math.radians(90)), False)
sketch4.addConstraint(Sketcher.Constraint("Tangent", 0, 2, 1, 1))
sketch4.addConstraint(Sketcher.Constraint("Tangent", 1, 2, 2, 1))
sketch4.addConstraint(Sketcher.Constraint("Tangent", 2, 2, 3, 1))
sketch4.addConstraint(Sketcher.Constraint("Tangent", 3, 2, 4, 1))
sketch4.addConstraint(Sketcher.Constraint("Tangent", 4, 2, 5, 1))
sketch4.addConstraint(Sketcher.Constraint("Tangent", 5, 2, 0, 1))
sketch4.addConstraint(Sketcher.Constraint("Tangent", 6, 2, 7, 1))
sketch4.addConstraint(Sketcher.Constraint("Tangent", 7, 2, 8, 1))
sketch4.addConstraint(Sketcher.Constraint("Tangent", 8, 2, 9, 1))
sketch4.addConstraint(Sketcher.Constraint("Tangent", 9, 2, 10, 1))
sketch4.addConstraint(Sketcher.Constraint("Tangent", 10, 2, 11, 1))
sketch4.addConstraint(Sketcher.Constraint("Tangent", 11, 2, 6, 1))
sketch4.addConstraint(Sketcher.Constraint("Vertical", 0))
sketch4.addConstraint(Sketcher.Constraint("Horizontal", 4))
sketch4.addConstraint(Sketcher.Constraint("Horizontal", 6))
sketch4.addConstraint(Sketcher.Constraint("Vertical", 10))
sketch4.addConstraint(Sketcher.Constraint("Equal", 1, 3))
sketch4.addConstraint(Sketcher.Constraint("Equal", 3, 5))
sketch4.addConstraint(Sketcher.Constraint("Equal", 5, 7))
sketch4.addConstraint(Sketcher.Constraint("Equal", 7, 9))
sketch4.addConstraint(Sketcher.Constraint("Equal", 9, 11))
sketch4.addConstraint(Sketcher.Constraint("Horizontal", 5, 3, 7, 3))
sketch4.addConstraint(Sketcher.Constraint("Horizontal", 1, 3, 9, 3))
sketch4.addConstraint(Sketcher.Constraint("Horizontal", 2, 2, 7, 2))
sketch4.addConstraint(Sketcher.Constraint("Radius", 1, Q("1 mm")))
sketch4.addConstraint(Sketcher.Constraint("Angle", 2, Q("60 deg")))
sketch4.addConstraint(Sketcher.Constraint("DistanceX", -1, 1, 1, 3, Q("6 mm")))
sketch4.addConstraint(Sketcher.Constraint("DistanceY", -1, 1, 3, 3, Q("34 mm")))
sketch4.addConstraint(Sketcher.Constraint("DistanceX", -1, 1, 9, 3, Q("84 mm")))
sketch4.addConstraint(Sketcher.Constraint("DistanceY", 0, 2, 0, 1, Q("12.549981 mm")))
sketch4.setExpression("Constraints[24]", "Params.sketch4_radius")
pocket3 = body.newObject("PartDesign::Pocket", "Pocket002")
pocket3.Profile = sketch4
pocket3.Type = "ThroughAll"

# Sketch on XZ plane
sketch5 = body.newObject("Sketcher::SketchObject", "Sketch004")
sketch5.AttachmentSupport = (doc.getObject("XZ_Plane"), [""])
sketch5.MapMode = "FlatFace"
sketch5.AttachmentOffset = App.Placement(V(0, 0, -40), App.Rotation())
sketch5.addGeometry(Part.Circle(V(5, -5, 0), V(0, 0, 1), 2.25), False)
sketch5.addConstraint(Sketcher.Constraint("Diameter", 0, Q("4.5 mm")))
sketch5.addConstraint(Sketcher.Constraint("DistanceX", -1, 1, 0, 3, Q("5 mm")))
sketch5.addConstraint(Sketcher.Constraint("DistanceY", 0, 3, -1, 1, Q("5 mm")))
sketch5.setExpression("Constraints[0]", "Params.sketch5_diameter")
pocket4 = body.newObject("PartDesign::Pocket", "Pocket003")
pocket4.Profile = sketch5
pocket4.setExpression("Length", "Params.pocket4_length")
pocket4.Reversed = True

# Sketch on XZ plane
sketch6 = body.newObject("Sketcher::SketchObject", "Sketch005")
sketch6.AttachmentSupport = (doc.getObject("XZ_Plane"), [""])
sketch6.MapMode = "FlatFace"
sketch6.AttachmentOffset = App.Placement(V(0, 0, -40), App.Rotation())
sketch6.addGeometry(Part.Circle(V(85, -5, 0), V(0, 0, 1), 2.25), False)
sketch6.addConstraint(Sketcher.Constraint("Diameter", 0, Q("4.5 mm")))
sketch6.addConstraint(Sketcher.Constraint("DistanceX", -1, 1, 0, 3, Q("85 mm")))
sketch6.addConstraint(Sketcher.Constraint("DistanceY", 0, 3, -1, 1, Q("5 mm")))
sketch6.setExpression("Constraints[0]", "Params.sketch6_diameter")
pocket5 = body.newObject("PartDesign::Pocket", "Pocket004")
pocket5.Profile = sketch6
pocket5.setExpression("Length", "Params.pocket5_length")
pocket5.Reversed = True

# Sketch on XZ plane
sketch7 = body.newObject("Sketcher::SketchObject", "Sketch006")
sketch7.AttachmentSupport = (doc.getObject("XZ_Plane"), [""])
sketch7.MapMode = "FlatFace"
sketch7.addGeometry(Part.Circle(V(28.875, -5, 0), V(0, 0, 1), 2), False)
sketch7.addConstraint(Sketcher.Constraint("Diameter", 0, Q("4 mm")))
sketch7.addConstraint(Sketcher.Constraint("DistanceY", 0, 3, -1, 1, Q("5 mm")))
sketch7.addConstraint(Sketcher.Constraint("DistanceX", -1, 1, 0, 3, Q("28.875 mm")))
sketch7.setExpression("Constraints[0]", "Params.sketch7_diameter")
pocket6 = body.newObject("PartDesign::Pocket", "Pocket005")
pocket6.Profile = sketch7
pocket6.Type = "UpToFirst"

# Sketch on XZ plane
sketch8 = body.newObject("Sketcher::SketchObject", "Sketch007")
sketch8.AttachmentSupport = (doc.getObject("XZ_Plane"), [""])
sketch8.MapMode = "FlatFace"
sketch8.addGeometry(Part.Circle(V(61.125, -5, 0), V(0, 0, 1), 2), False)
sketch8.addConstraint(Sketcher.Constraint("Diameter", 0, Q("4 mm")))
sketch8.addConstraint(Sketcher.Constraint("DistanceY", 0, 3, -1, 1, Q("5 mm")))
sketch8.addConstraint(Sketcher.Constraint("DistanceX", -1, 1, 0, 3, Q("61.125 mm")))
sketch8.setExpression("Constraints[0]", "Params.sketch8_diameter")
pocket7 = body.newObject("PartDesign::Pocket", "Pocket006")
pocket7.Profile = sketch8
pocket7.Type = "UpToFirst"

# Sketch on XY plane
sketch9 = body.newObject("Sketcher::SketchObject", "Sketch008")
sketch9.AttachmentSupport = (doc.getObject("XY_Plane"), [""])
sketch9.MapMode = "FlatFace"
add_polygon(sketch9, [(27.679492, 19.5), (27.679492, 7), (45, 7), (45, 19.5)])  # lines 0-3
sketch9.addConstraint(Sketcher.Constraint("Vertical", 0))
sketch9.addConstraint(Sketcher.Constraint("Horizontal", 1))
sketch9.addConstraint(Sketcher.Constraint("Vertical", 2))
sketch9.addConstraint(Sketcher.Constraint("Horizontal", 3))
sketch9.addConstraint(Sketcher.Constraint("DistanceY", 0, 2, 0, 1, Q("12.5 mm")))
sketch9.addConstraint(Sketcher.Constraint("DistanceY", -1, 1, 0, 2, Q("7 mm")))
sketch9.addConstraint(Sketcher.Constraint("DistanceX", -1, 1, 1, 2, Q("45 mm")))
sketch9.addConstraint(Sketcher.Constraint("DistanceX", 1, 1, 1, 2, Q("17.320508 mm")))
sketch9.setExpression("Constraints[8]", "Params.sketch9_height")
pocket8 = body.newObject("PartDesign::Pocket", "Pocket007")
pocket8.Profile = sketch9
pocket8.Type = "ThroughAll"

doc.recompute()
